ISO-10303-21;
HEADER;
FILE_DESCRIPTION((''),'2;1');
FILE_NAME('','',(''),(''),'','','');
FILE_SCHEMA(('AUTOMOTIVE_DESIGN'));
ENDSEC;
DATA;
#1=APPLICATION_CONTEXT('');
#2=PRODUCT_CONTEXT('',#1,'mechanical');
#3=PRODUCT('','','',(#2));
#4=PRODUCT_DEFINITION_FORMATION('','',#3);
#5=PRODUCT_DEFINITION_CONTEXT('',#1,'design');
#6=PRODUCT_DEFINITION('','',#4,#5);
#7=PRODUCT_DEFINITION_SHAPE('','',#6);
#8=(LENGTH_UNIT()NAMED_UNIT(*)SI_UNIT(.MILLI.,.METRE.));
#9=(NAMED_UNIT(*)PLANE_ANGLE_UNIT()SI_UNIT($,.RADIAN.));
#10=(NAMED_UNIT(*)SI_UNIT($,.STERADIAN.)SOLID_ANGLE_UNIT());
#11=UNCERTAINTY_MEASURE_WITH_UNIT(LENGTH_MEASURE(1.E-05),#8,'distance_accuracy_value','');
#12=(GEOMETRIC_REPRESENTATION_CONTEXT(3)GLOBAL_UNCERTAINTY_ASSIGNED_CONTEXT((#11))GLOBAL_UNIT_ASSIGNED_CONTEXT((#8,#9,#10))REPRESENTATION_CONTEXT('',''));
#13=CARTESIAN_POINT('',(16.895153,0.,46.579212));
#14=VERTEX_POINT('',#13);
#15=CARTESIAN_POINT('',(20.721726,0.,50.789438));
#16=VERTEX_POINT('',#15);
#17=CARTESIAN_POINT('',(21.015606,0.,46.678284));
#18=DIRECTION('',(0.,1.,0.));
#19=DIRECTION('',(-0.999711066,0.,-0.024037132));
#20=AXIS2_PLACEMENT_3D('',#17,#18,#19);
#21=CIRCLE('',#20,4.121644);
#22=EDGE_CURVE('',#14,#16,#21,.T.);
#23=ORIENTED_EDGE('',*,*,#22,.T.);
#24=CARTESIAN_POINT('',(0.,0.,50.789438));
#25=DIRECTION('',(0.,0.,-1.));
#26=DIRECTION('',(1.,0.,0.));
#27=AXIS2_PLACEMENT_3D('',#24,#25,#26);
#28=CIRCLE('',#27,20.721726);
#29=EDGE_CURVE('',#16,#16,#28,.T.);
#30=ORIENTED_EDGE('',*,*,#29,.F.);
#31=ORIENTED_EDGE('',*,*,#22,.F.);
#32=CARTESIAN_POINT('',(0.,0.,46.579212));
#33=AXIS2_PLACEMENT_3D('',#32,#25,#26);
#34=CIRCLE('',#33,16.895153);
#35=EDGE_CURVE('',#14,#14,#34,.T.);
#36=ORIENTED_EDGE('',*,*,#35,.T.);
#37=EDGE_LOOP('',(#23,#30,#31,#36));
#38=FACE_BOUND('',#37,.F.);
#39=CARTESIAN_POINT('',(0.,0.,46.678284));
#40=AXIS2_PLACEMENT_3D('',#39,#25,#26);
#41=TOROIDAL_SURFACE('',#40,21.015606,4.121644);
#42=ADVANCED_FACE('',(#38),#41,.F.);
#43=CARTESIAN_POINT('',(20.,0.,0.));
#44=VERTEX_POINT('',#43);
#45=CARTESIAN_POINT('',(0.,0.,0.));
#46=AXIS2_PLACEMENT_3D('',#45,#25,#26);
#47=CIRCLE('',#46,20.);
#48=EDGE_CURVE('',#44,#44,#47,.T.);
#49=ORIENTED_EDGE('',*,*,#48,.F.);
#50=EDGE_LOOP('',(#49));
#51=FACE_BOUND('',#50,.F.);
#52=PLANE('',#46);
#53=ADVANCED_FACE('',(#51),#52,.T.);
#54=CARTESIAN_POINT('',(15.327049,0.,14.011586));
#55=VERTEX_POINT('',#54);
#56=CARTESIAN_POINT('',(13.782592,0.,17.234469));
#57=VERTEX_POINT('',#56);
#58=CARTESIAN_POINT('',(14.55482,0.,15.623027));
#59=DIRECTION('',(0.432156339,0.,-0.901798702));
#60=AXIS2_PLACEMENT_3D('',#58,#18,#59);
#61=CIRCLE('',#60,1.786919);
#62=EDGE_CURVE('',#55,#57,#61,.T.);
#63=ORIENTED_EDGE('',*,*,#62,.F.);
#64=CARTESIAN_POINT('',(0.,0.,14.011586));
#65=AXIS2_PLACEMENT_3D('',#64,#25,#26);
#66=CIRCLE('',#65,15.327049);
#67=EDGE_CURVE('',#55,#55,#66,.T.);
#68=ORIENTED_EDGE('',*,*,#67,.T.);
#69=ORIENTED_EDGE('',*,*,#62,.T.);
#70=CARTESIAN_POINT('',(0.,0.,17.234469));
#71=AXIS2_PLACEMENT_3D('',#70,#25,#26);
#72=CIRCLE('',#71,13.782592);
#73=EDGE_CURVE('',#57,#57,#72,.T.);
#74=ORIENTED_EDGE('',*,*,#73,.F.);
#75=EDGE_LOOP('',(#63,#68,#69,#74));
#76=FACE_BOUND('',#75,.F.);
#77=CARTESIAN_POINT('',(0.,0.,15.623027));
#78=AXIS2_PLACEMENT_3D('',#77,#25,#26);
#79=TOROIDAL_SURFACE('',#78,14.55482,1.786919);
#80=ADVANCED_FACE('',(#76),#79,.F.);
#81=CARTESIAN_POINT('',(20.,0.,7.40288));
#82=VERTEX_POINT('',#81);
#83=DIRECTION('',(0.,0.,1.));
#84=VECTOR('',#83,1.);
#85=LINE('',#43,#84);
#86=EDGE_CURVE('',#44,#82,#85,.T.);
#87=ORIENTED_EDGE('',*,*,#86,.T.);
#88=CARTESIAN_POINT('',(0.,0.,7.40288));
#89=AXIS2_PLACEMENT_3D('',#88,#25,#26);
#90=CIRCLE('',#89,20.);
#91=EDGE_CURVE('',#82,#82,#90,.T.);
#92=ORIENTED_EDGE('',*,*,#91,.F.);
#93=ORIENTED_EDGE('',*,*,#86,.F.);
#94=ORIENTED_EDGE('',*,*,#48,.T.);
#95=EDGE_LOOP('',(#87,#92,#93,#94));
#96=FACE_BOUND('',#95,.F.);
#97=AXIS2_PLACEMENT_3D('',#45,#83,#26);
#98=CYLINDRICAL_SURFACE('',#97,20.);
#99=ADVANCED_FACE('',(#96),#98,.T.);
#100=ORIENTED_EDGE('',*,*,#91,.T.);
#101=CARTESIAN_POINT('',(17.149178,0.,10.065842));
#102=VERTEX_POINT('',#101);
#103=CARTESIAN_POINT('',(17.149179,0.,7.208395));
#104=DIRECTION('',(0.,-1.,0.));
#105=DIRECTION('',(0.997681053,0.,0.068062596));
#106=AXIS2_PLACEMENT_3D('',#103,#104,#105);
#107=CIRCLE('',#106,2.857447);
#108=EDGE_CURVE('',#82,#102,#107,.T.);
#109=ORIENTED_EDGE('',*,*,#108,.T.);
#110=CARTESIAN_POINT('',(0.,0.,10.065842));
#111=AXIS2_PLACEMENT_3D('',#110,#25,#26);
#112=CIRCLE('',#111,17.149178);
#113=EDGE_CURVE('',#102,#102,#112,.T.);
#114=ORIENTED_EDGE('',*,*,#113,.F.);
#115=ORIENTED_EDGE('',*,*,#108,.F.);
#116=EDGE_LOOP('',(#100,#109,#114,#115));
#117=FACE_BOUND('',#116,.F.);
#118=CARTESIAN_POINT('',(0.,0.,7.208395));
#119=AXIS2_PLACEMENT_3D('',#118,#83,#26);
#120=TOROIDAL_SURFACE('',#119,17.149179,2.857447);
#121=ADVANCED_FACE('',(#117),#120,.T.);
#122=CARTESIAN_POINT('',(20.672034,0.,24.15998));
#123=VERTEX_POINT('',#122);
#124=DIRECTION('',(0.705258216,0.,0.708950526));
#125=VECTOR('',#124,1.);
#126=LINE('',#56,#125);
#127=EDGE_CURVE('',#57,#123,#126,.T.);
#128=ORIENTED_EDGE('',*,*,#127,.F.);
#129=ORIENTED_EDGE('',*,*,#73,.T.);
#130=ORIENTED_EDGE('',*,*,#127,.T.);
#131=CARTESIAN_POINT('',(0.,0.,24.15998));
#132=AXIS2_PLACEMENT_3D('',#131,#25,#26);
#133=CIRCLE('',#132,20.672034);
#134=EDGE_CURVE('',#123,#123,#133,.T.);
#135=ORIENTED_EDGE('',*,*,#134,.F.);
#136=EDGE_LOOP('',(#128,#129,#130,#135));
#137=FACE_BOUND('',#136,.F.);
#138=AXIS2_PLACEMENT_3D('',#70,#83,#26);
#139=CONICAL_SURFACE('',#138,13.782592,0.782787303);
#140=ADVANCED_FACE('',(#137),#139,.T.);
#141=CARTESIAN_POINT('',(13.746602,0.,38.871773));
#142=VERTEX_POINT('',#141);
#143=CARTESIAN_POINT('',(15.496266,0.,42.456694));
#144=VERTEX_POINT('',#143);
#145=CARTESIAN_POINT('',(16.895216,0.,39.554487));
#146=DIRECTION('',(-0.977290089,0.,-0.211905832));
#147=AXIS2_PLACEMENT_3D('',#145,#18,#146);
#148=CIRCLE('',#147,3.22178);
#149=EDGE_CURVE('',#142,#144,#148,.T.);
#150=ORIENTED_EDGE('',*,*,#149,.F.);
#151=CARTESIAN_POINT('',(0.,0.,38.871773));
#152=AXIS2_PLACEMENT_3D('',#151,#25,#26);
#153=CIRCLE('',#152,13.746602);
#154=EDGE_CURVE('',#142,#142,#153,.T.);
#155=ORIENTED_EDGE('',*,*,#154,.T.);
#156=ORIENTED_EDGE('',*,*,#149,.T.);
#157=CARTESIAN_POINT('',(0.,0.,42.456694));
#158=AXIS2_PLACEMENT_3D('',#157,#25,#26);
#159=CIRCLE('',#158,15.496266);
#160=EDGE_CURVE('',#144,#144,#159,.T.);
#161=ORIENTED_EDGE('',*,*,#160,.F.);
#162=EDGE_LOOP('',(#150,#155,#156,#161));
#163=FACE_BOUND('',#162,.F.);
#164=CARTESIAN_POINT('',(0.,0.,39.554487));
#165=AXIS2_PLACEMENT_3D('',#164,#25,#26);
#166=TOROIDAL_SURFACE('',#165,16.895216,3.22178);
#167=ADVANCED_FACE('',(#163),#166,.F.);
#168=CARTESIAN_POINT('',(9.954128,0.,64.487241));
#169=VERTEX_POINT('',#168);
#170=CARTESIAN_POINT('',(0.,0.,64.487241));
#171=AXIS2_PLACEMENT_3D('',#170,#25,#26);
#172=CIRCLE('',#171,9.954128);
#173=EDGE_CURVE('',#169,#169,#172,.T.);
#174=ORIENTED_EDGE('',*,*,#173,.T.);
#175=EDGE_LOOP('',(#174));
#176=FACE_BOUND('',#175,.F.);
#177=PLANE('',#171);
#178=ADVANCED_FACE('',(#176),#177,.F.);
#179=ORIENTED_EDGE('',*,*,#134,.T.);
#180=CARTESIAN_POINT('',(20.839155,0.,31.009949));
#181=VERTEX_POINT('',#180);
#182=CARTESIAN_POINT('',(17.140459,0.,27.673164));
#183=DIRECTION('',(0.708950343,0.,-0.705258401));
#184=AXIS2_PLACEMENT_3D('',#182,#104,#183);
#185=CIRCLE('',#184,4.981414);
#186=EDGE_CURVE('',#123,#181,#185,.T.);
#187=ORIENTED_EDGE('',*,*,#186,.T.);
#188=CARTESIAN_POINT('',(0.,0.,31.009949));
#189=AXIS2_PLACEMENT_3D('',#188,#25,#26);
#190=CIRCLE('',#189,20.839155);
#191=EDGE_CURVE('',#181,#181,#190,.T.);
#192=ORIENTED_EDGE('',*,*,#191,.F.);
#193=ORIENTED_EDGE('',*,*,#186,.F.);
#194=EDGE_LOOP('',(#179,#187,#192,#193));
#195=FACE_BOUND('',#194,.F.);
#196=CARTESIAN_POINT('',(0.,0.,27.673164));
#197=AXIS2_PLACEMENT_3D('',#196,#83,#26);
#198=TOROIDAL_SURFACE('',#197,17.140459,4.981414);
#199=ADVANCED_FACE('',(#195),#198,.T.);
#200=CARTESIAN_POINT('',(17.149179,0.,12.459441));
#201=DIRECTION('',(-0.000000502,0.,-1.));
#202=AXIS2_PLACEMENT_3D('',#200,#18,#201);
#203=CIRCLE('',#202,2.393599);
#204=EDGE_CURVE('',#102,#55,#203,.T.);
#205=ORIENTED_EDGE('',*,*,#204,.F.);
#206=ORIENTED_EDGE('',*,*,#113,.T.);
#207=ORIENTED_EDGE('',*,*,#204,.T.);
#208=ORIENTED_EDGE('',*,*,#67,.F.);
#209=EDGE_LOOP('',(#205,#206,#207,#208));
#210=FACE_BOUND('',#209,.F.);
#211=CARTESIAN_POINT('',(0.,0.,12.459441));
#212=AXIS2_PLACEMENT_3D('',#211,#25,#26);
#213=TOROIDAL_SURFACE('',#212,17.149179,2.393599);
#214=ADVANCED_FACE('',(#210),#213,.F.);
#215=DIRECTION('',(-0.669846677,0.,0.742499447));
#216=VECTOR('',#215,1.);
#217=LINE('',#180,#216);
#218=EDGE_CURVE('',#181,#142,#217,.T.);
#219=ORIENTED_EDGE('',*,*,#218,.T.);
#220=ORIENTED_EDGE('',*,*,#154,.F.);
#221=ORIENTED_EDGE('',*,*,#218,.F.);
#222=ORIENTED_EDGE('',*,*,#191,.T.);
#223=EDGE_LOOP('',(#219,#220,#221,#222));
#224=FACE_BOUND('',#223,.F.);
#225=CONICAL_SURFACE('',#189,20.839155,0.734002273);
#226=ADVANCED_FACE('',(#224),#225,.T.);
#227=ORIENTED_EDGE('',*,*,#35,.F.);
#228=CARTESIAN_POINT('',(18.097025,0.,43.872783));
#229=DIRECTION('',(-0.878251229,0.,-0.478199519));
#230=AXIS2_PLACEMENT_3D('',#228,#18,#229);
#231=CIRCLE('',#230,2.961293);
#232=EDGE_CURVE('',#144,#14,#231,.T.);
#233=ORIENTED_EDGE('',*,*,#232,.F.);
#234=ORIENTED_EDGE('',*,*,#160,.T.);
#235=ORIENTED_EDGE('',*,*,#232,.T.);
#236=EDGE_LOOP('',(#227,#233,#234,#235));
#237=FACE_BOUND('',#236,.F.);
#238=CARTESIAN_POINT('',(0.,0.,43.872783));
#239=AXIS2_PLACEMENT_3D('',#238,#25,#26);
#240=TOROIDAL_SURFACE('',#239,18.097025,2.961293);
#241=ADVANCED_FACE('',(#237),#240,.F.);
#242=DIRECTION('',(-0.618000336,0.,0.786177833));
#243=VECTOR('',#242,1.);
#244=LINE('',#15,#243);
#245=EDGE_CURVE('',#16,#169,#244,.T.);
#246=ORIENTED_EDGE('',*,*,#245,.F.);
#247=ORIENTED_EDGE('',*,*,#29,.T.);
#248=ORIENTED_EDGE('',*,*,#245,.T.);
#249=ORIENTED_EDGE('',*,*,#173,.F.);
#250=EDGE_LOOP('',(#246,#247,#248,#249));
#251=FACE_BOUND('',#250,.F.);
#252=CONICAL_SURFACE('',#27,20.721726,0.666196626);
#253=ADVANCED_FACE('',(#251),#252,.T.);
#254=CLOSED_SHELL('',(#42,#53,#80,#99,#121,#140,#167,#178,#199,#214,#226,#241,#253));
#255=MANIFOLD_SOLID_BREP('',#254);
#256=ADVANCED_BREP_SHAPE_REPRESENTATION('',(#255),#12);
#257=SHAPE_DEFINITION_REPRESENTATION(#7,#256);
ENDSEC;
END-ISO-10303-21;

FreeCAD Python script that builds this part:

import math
import FreeCAD as App
import Part
import Sketcher

doc = App.newDocument("Part")
params = doc.addObject("Spreadsheet::Sheet", "Params")
for row, (alias, value) in enumerate([
    ("sketch1_width", "20 mm"),
    ("revolution_angle", "360 deg"),
], start=1):
    params.set(f"A{row}", alias)
    params.set(f"B{row}", "=" + value)
    params.setAlias(f"B{row}", alias)

body = doc.addObject("PartDesign::Body", "Body")

sketch1 = body.newObject("Sketcher::SketchObject", "Sketch")
sketch1.AttachmentSupport = (doc.getObject("XZ_Plane"), [""])
sketch1.MapMode = "FlatFace"
sketch1.addGeometry(Part.LineSegment(App.Vector(0, 64.487241, 0), App.Vector(0, 0, 0)), False)
sketch1.addGeometry(Part.LineSegment(App.Vector(0, 0, 0), App.Vector(20, 0, 0)), False)
sketch1.addGeometry(Part.LineSegment(App.Vector(20, 0, 0), App.Vector(20, 7.40288, 0)), False)
sketch1.addGeometry(Part.ArcOfCircle(Part.Circle(App.Vector(17.149179, 7.208395, 0), App.Vector(0, 0, 1), 2.857447), math.radians(3.902717), math.radians(90.00002)), False)
sketch1.addGeometry(Part.ArcOfCircle(Part.Circle(App.Vector(17.149179, 12.459441, 0), App.Vector(0, 0, 1), 2.393599), math.radians(139.574642), math.radians(269.999971)), False)
sketch1.addGeometry(Part.ArcOfCircle(Part.Circle(App.Vector(14.55482, 15.623027, 0), App.Vector(0, 0, 1), 1.786919), math.radians(115.604485), math.radians(295.604485)), False)
sketch1.addGeometry(Part.LineSegment(App.Vector(13.782592, 17.234469, 0), App.Vector(20.672034, 24.15998, 0)), False)
sketch1.addGeometry(Part.ArcOfCircle(Part.Circle(App.Vector(17.140459, 27.673164, 0), App.Vector(0, 0, 1), 4.981414), math.radians(-44.850424), math.radians(42.055249)), False)
sketch1.addGeometry(Part.LineSegment(App.Vector(20.839155, 31.009949, 0), App.Vector(13.746602, 38.871773, 0)), False)
sketch1.addGeometry(Part.ArcOfCircle(Part.Circle(App.Vector(16.895216, 39.554487, 0), App.Vector(0, 0, 1), 3.22178), math.radians(115.73544), math.radians(192.234062)), False)
sketch1.addGeometry(Part.ArcOfCircle(Part.Circle(App.Vector(18.097025, 43.872783, 0), App.Vector(0, 0, 1), 2.961293), math.radians(113.945068), math.radians(208.567876)), False)
sketch1.addGeometry(Part.ArcOfCircle(Part.Circle(App.Vector(21.015606, 46.678284, 0), App.Vector(0, 0, 1), 4.121644), math.radians(94.088753), math.radians(181.377359)), False)
sketch1.addGeometry(Part.LineSegment(App.Vector(20.721726, 50.789438, 0), App.Vector(9.954128, 64.487241, 0)), False)
sketch1.addGeometry(Part.LineSegment(App.Vector(9.954128, 64.487241, 0), App.Vector(0, 64.487241, 0)), False)
sketch1.addConstraint(Sketcher.Constraint("Coincident", 0, 2, 1, 1))
sketch1.addConstraint(Sketcher.Constraint("Coincident", 1, 2, 2, 1))
sketch1.addConstraint(Sketcher.Constraint("Coincident", 2, 2, 3, 1))
sketch1.addConstraint(Sketcher.Constraint("Coincident", 3, 2, 4, 2))
sketch1.addConstraint(Sketcher.Constraint("Coincident", 4, 1, 5, 2))
sketch1.addConstraint(Sketcher.Constraint("Coincident", 5, 1, 6, 1))
sketch1.addConstraint(Sketcher.Constraint("Coincident", 6, 2, 7, 1))
sketch1.addConstraint(Sketcher.Constraint("Coincident", 7, 2, 8, 1))
sketch1.addConstraint(Sketcher.Constraint("Coincident", 8, 2, 9, 2))
sketch1.addConstraint(Sketcher.Constraint("Coincident", 9, 1, 10, 2))
sketch1.addConstraint(Sketcher.Constraint("Coincident", 10, 1, 11, 2))
sketch1.addConstraint(Sketcher.Constraint("Coincident", 11, 1, 12, 1))
sketch1.addConstraint(Sketcher.Constraint("Coincident", 12, 2, 13, 1))
sketch1.addConstraint(Sketcher.Constraint("Coincident", 13, 2, 0, 1))
sketch1.addConstraint(Sketcher.Constraint("Vertical", 0))
sketch1.addConstraint(Sketcher.Constraint("Horizontal", 1))
sketch1.addConstraint(Sketcher.Constraint("Vertical", 2))
sketch1.addConstraint(Sketcher.Constraint("Horizontal", 13))
sketch1.addConstraint(Sketcher.Constraint("Coincident", 0, 2, -1, 1))
sketch1.addConstraint(Sketcher.Constraint("DistanceX", 1, 1, 1, 2, 20.0))
sketch1.addConstraint(Sketcher.Constraint("Radius", 4, 2.393599))
sketch1.addConstraint(Sketcher.Constraint("Radius", 5, 1.786919))
sketch1.addConstraint(Sketcher.Constraint("Radius", 9, 3.22178))
sketch1.addConstraint(Sketcher.Constraint("Radius", 3, 2.857447))
sketch1.addConstraint(Sketcher.Constraint("Radius", 7, 4.981414))
sketch1.addConstraint(Sketcher.Constraint("Radius", 10, 2.961293))
sketch1.addConstraint(Sketcher.Constraint("Radius", 11, 4.121644))
sketch1.addConstraint(Sketcher.Constraint("DistanceX", 13, 2, 13, 1, 9.954128))
sketch1.addConstraint(Sketcher.Constraint("DistanceY", 0, 2, 0, 1, 64.487241))
sketch1.addConstraint(Sketcher.Constraint("DistanceY", 2, 1, 2, 2, 7.40288))
sketch1.addConstraint(Sketcher.Constraint("DistanceX", -1, 1, 8, 2, 13.746602))
sketch1.addConstraint(Sketcher.Constraint("DistanceY", 10, 3, 11, 3, 2.805502))
sketch1.addConstraint(Sketcher.Constraint("DistanceX", 10, 3, 11, 1, 2.624701))
sketch1.addConstraint(Sketcher.Constraint("DistanceX", 12, 2, 11, 1, 10.767598))
sketch1.addConstraint(Sketcher.Constraint("Distance", 6, 9.76868))
sketch1.addConstraint(Sketcher.Constraint("Distance", 12, 17.423288))
sketch1.addConstraint(Sketcher.Constraint("DistanceX", -1, 1, 3, 3, 17.149179))
sketch1.addConstraint(Sketcher.Constraint("DistanceX", -1, 1, 4, 3, 17.149179))
sketch1.addConstraint(Sketcher.Constraint("DistanceX", -1, 1, 5, 3, 14.55482))
sketch1.addConstraint(Sketcher.Constraint("DistanceX", -1, 1, 7, 3, 17.140459))
sketch1.addConstraint(Sketcher.Constraint("DistanceX", -1, 1, 4, 1, 15.327049))
sketch1.addConstraint(Sketcher.Constraint("DistanceY", -1, 1, 5, 1, 17.234469))
sketch1.addConstraint(Sketcher.Constraint("DistanceY", -1, 1, 6, 2, 24.15998))
sketch1.addConstraint(Sketcher.Constraint("DistanceY", -1, 1, 7, 2, 31.009949))
sketch1.addConstraint(Sketcher.Constraint("DistanceY", -1, 1, 10, 1, 46.579212))
sketch1.addConstraint(Sketcher.Constraint("DistanceY", 5, 3, 9, 3, 23.931459))
sketch1.addConstraint(Sketcher.Constraint("DistanceX", 9, 3, 10, 3, 1.20181))
sketch1.addConstraint(Sketcher.Constraint("DistanceX", 4, 1, 3, 2, 1.822129))
sketch1.setExpression("Constraints[19]", "Params.sketch1_width")
revolution = body.newObject("PartDesign::Revolution", "Revolution")
revolution.Profile = sketch1
revolution.ReferenceAxis = (sketch1, ["V_Axis"])
revolution.setExpression("Angle", "Params.revolution_angle")

doc.recompute()
